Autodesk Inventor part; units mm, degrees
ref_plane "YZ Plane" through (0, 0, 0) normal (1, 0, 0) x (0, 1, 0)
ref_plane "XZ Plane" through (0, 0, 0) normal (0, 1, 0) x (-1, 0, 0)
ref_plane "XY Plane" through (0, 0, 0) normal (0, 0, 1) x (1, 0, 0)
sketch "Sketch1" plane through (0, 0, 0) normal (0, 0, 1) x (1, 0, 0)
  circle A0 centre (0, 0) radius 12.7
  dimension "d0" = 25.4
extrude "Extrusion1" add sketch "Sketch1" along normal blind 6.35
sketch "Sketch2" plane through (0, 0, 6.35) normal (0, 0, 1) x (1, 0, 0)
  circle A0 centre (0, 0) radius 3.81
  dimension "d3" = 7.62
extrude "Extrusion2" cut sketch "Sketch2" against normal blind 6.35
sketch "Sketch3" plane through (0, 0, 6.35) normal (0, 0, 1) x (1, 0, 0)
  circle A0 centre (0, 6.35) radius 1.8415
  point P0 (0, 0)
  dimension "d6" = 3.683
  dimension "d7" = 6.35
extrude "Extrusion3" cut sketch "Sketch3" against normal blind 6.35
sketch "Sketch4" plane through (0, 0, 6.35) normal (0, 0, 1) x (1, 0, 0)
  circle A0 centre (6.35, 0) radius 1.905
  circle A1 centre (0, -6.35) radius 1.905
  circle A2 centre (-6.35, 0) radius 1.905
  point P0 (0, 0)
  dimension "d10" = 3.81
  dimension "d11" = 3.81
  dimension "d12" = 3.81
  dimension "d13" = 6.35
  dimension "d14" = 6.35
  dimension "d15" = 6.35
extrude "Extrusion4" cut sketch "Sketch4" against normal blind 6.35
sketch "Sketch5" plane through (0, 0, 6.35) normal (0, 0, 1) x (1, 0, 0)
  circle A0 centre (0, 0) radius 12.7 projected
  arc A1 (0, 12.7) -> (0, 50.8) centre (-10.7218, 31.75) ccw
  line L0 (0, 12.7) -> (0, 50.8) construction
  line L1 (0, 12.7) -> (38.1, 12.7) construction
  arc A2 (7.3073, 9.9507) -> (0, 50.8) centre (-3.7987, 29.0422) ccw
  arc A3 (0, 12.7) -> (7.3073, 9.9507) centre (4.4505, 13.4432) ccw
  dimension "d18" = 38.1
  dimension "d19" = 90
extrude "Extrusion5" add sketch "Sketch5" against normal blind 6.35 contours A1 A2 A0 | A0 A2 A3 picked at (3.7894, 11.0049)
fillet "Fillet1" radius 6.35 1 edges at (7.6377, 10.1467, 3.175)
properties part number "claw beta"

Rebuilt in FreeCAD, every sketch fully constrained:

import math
import FreeCAD as App
import Part
import Sketcher
Q = App.Units.Quantity


def edges_at(feature, points):
    """Names of the edges that pass closest to the given points."""
    edges = feature.Shape.Edges
    near = lambda p: min(range(len(edges)), key=lambda i: edges[i].distToShape(Part.Vertex(*p))[0])
    return sorted({f"Edge{near(p) + 1}" for p in points})

doc = App.newDocument("Part")
body = doc.addObject("PartDesign::Body", "Body")

sketch1 = doc.addObject("Sketcher::SketchObject", "Sketch")
body.addObject(sketch1)
sketch1.AttachmentSupport = (doc.XY_Plane, [""])
sketch1.MapMode = "FlatFace"
sketch1.addGeometry(Part.Circle(App.Vector(0, 0, 0), App.Vector(0, 0, 1), 13), False)
sketch1.addConstraint([
    Sketcher.Constraint("Coincident", 0, 3, -1, 1),
    Sketcher.Constraint("Diameter", 0, Q("1 in")),
])
pad1 = doc.addObject("PartDesign::Pad", "Pad")
body.addObject(pad1)
pad1.Profile = sketch1
pad1.Length = Q("0.25 in")

sketch2 = doc.addObject("Sketcher::SketchObject", "Sketch001")
body.addObject(sketch2)
sketch2.AttachmentSupport = (doc.XY_Plane, [""])
sketch2.MapMode = "FlatFace"
sketch2.AttachmentOffset = App.Placement(App.Vector(0, 0, 0.25 * 25.4), App.Rotation())
sketch2.addGeometry(Part.Circle(App.Vector(0, 0, 0), App.Vector(0, 0, 1), 3.8), False)
sketch2.addConstraint([
    Sketcher.Constraint("Coincident", 0, 3, -1, 1),
    Sketcher.Constraint("Diameter", 0, Q("0.3 in")),
])
pocket1 = doc.addObject("PartDesign::Pocket", "Pocket")
body.addObject(pocket1)
pocket1.Profile = sketch2
pocket1.Length = Q("0.25 in")

sketch3 = doc.addObject("Sketcher::SketchObject", "Sketch002")
body.addObject(sketch3)
sketch3.AttachmentSupport = (doc.XY_Plane, [""])
sketch3.MapMode = "FlatFace"
sketch3.AttachmentOffset = App.Placement(App.Vector(0, 0, 0.25 * 25.4), App.Rotation())
sketch3.addGeometry(Part.Circle(App.Vector(0, 6.3, 0), App.Vector(0, 0, 1), 1.8), False)
sketch3.addConstraint([
    Sketcher.Constraint("PointOnObject", 0, 3, -2),
    Sketcher.Constraint("Diameter", 0, Q("0.145 in")),
    Sketcher.Constraint("DistanceY", -1, 1, 0, 3, Q("0.25 in")),
])
pocket2 = doc.addObject("PartDesign::Pocket", "Pocket001")
body.addObject(pocket2)
pocket2.Profile = sketch3
pocket2.Length = Q("0.25 in")

sketch4 = doc.addObject("Sketcher::SketchObject", "Sketch003")
body.addObject(sketch4)
sketch4.AttachmentSupport = (doc.XY_Plane, [""])
sketch4.MapMode = "FlatFace"
sketch4.AttachmentOffset = App.Placement(App.Vector(0, 0, 0.25 * 25.4), App.Rotation())
sketch4.addGeometry([
    Part.Circle(App.Vector(6.3, 0, 0), App.Vector(0, 0, 1), 1.9),
    Part.Circle(App.Vector(0, -6.3, 0), App.Vector(0, 0, 1), 1.9),
    Part.Circle(App.Vector(-6.3, 0, 0), App.Vector(0, 0, 1), 1.9),
], False)
sketch4.addConstraint([
    Sketcher.Constraint("Equal", 0, 1),
    Sketcher.Constraint("Equal", 1, 2),
    Sketcher.Constraint("Symmetric", 0, 3, 2, 3, -1, 1),
    Sketcher.Constraint("PointOnObject", 0, 3, -1),
    Sketcher.Constraint("PointOnObject", 1, 3, -2),
    Sketcher.Constraint("Diameter", 0, Q("0.15 in")),
    Sketcher.Constraint("DistanceX", -1, 1, 0, 3, Q("0.25 in")),
    Sketcher.Constraint("DistanceY", 1, 3, -1, 1, Q("0.25 in")),
])
pocket3 = doc.addObject("PartDesign::Pocket", "Pocket002")
body.addObject(pocket3)
pocket3.Profile = sketch4
pocket3.Length = Q("0.25 in")

sketch5 = doc.addObject("Sketcher::SketchObject", "Sketch004")
body.addObject(sketch5)
sketch5.AttachmentSupport = (doc.XY_Plane, [""])
sketch5.MapMode = "FlatFace"
sketch5.AttachmentOffset = App.Placement(App.Vector(0, 0, 0.25 * 25.4), App.Rotation())
sketch5.addGeometry([
    Part.ArcOfCircle(Part.Circle(App.Vector(-10.7, 31.8, 0), App.Vector(0, 0, 1), 21.9), math.radians(-61), math.radians(61)),
    Part.ArcOfCircle(Part.Circle(App.Vector(4.5, 13.4, 0), App.Vector(0, 0, 1), 4.5), math.radians(-171), math.radians(-51)),
    Part.ArcOfCircle(Part.Circle(App.Vector(-3.8, 29, 0), App.Vector(0, 0, 1), 22.1), math.radians(-60), math.radians(80)),
], False)
sketch5.addConstraint([
    Sketcher.Constraint("Coincident", 0, 1, 1, 1),
    Sketcher.Constraint("Coincident", 1, 2, 2, 1),
    Sketcher.Constraint("Coincident", 2, 2, 0, 2),
    Sketcher.Constraint("PointOnObject", 0, 1, -2),
    Sketcher.Constraint("PointOnObject", 2, 2, -2),
    Sketcher.Constraint("DistanceY", 0, 1, 2, 2, Q("1.5 in")),
    Sketcher.Constraint("DistanceY", -1, 1, 2, 2, Q("2 in")),
    Sketcher.Constraint("Radius", 0, 21.86),
    Sketcher.Constraint("Radius", 1, 4.5121),
    Sketcher.Constraint("Radius", 2, 22.0868),
    Sketcher.Constraint("DistanceY", -1, 1, 2, 3, Q("1.1434 in")),
    Sketcher.Constraint("DistanceX", -1, 1, 1, 2, Q("0.2877 in")),
])
pad2 = doc.addObject("PartDesign::Pad", "Pad001")
body.addObject(pad2)
pad2.Profile = sketch5
pad2.Length = Q("0.25 in")
pad2.Reversed = True
doc.recompute()

fillet = doc.addObject("PartDesign::Fillet", "Fillet")
body.addObject(fillet)
fillet.Base = (pad2, edges_at(pad2, [(7.638, 10.147, 3.175)]))
fillet.Radius = Q("0.25 in")

doc.recompute()
